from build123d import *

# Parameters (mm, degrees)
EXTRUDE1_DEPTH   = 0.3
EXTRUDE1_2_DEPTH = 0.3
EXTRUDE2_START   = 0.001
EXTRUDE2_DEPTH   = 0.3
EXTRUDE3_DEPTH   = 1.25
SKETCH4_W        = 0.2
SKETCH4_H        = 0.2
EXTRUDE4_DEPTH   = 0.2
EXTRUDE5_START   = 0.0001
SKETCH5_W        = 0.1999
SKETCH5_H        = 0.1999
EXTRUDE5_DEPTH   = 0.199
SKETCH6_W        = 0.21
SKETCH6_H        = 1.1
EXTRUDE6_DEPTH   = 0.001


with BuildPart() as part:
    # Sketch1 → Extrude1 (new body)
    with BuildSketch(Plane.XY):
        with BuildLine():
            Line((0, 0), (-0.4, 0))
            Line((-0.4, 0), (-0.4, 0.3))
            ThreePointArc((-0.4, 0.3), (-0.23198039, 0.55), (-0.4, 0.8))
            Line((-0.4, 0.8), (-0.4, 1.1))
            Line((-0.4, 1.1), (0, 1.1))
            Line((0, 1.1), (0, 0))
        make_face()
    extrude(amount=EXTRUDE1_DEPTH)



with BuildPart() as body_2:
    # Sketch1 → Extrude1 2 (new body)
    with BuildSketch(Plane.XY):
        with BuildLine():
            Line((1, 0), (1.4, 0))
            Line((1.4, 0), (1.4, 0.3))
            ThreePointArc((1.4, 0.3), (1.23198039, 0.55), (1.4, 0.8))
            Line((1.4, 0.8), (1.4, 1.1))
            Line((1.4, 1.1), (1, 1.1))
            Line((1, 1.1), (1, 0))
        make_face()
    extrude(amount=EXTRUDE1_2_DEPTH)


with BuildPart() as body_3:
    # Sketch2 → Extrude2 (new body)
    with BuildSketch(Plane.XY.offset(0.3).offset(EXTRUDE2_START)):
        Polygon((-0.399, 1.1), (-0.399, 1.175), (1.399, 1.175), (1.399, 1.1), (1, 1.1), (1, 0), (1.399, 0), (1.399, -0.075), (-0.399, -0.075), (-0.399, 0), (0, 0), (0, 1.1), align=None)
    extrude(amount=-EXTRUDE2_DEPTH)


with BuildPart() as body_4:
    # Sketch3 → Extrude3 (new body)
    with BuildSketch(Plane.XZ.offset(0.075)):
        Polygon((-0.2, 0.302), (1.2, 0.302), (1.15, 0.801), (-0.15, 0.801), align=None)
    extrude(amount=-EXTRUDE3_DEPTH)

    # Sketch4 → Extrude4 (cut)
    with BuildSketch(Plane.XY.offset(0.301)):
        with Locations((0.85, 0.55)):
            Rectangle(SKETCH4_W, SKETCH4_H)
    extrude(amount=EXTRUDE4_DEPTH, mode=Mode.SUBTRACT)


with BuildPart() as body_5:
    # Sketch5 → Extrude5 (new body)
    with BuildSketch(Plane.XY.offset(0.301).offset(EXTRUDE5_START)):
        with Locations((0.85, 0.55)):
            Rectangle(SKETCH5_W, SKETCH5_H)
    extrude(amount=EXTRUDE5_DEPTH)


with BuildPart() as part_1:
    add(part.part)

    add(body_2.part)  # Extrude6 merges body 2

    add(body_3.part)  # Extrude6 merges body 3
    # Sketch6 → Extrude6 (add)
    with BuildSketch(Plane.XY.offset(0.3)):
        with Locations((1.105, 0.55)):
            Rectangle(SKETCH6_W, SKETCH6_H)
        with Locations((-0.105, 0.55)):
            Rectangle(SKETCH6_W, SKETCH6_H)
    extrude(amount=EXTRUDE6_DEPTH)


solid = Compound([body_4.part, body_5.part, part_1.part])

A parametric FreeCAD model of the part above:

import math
import FreeCAD as App
import Part
import Sketcher

V = App.Vector

doc = App.newDocument("Part")
body = doc.addObject("PartDesign::Body", "Body")

# Sketch on XY plane
sketch1 = body.newObject("Sketcher::SketchObject", "Sketch")
sketch1.AttachmentSupport = (doc.getObject("XY_Plane"), [""])
sketch1.MapMode = "FlatFace"
sketch1.addGeometry([
    Part.LineSegment(V(-0.4, 0, 0), V(0, 0, 0)),  # 0
    Part.LineSegment(V(0, 0, 0), V(0, 1.1, 0)),  # 1
    Part.LineSegment(V(0, 1.1, 0), V(-0.4, 1.1, 0)),  # 2
    Part.LineSegment(V(-0.4, 1.1, 0), V(-0.4, 0.8, 0)),  # 3
    Part.ArcOfCircle(Part.Circle(V(-0.5, 0.55, 0), V(0, 0, 1), 0.27), math.radians(-68), math.radians(68)),  # 4
    Part.LineSegment(V(-0.4, 0.3, 0), V(-0.4, 0, 0)),  # 5
], False)
sketch1.addConstraint([
    Sketcher.Constraint("Coincident", 0, 2, 1, 1),
    Sketcher.Constraint("Coincident", 1, 2, 2, 1),
    Sketcher.Constraint("Coincident", 2, 2, 3, 1),
    Sketcher.Constraint("Coincident", 3, 2, 4, 2),
    Sketcher.Constraint("Coincident", 4, 1, 5, 1),
    Sketcher.Constraint("Coincident", 5, 2, 0, 1),
    Sketcher.Constraint("Horizontal", 0),
    Sketcher.Constraint("Vertical", 1),
    Sketcher.Constraint("Horizontal", 2),
    Sketcher.Constraint("Vertical", 3),
    Sketcher.Constraint("Vertical", 5),
    Sketcher.Constraint("Coincident", 0, 2, -1, 1),
    Sketcher.Constraint("Vertical", 3, 2, 4, 1),
    Sketcher.Constraint("Equal", 3, 5),
    Sketcher.Constraint("Radius", 4, 0.27),
    Sketcher.Constraint("DistanceX", 0, 1, 0, 2, 0.4),
    Sketcher.Constraint("DistanceY", 1, 1, 1, 2, 1.1),
    Sketcher.Constraint("DistanceY", 3, 2, 3, 1, 0.3),
])
pad1 = body.newObject("PartDesign::Pad", "Pad")
pad1.Profile = sketch1
pad1.Length = 0.3
body2 = doc.addObject("PartDesign::Body", "Body001")

# Sketch on XY plane
sketch2 = body2.newObject("Sketcher::SketchObject", "Sketch001")
sketch2.AttachmentSupport = (doc.getObject("XY_Plane001"), [""])
sketch2.MapMode = "FlatFace"
sketch2.addGeometry([
    Part.LineSegment(V(1, 0, 0), V(1.4, 0, 0)),  # 0
    Part.LineSegment(V(1.4, 0, 0), V(1.4, 0.3, 0)),  # 1
    Part.ArcOfCircle(Part.Circle(V(1.5, 0.55, 0), V(0, 0, 1), 0.27), math.radians(112), math.radians(248)),  # 2
    Part.LineSegment(V(1.4, 0.8, 0), V(1.4, 1.1, 0)),  # 3
    Part.LineSegment(V(1.4, 1.1, 0), V(1, 1.1, 0)),  # 4
    Part.LineSegment(V(1, 1.1, 0), V(1, 0, 0)),  # 5
], False)
sketch2.addConstraint([
    Sketcher.Constraint("Coincident", 0, 2, 1, 1),
    Sketcher.Constraint("Coincident", 1, 2, 2, 2),
    Sketcher.Constraint("Coincident", 2, 1, 3, 1),
    Sketcher.Constraint("Coincident", 3, 2, 4, 1),
    Sketcher.Constraint("Coincident", 4, 2, 5, 1),
    Sketcher.Constraint("Coincident", 5, 2, 0, 1),
    Sketcher.Constraint("Horizontal", 0),
    Sketcher.Constraint("Vertical", 1),
    Sketcher.Constraint("Vertical", 3),
    Sketcher.Constraint("Horizontal", 4),
    Sketcher.Constraint("Vertical", 5),
    Sketcher.Constraint("PointOnObject", 0, 2, -1),
    Sketcher.Constraint("Vertical", 1, 2, 2, 1),
    Sketcher.Constraint("Equal", 1, 3),
    Sketcher.Constraint("Radius", 2, 0.27),
    Sketcher.Constraint("DistanceX", 0, 1, 0, 2, 0.4),
    Sketcher.Constraint("DistanceY", 1, 1, 1, 2, 0.3),
    Sketcher.Constraint("DistanceY", 5, 2, 5, 1, 1.1),
    Sketcher.Constraint("DistanceX", -1, 1, 4, 2, 1.0),
])
pad2 = body2.newObject("PartDesign::Pad", "Pad001")
pad2.Profile = sketch2
pad2.Length = 0.3
body3 = doc.addObject("PartDesign::Body", "Body002")

# Sketch on XY plane
sketch3 = body3.newObject("Sketcher::SketchObject", "Sketch002")
sketch3.AttachmentSupport = (doc.getObject("XY_Plane002"), [""])
sketch3.MapMode = "FlatFace"
sketch3.AttachmentOffset = App.Placement(V(0, 0, 0.301), App.Rotation())
sketch3.addGeometry([
    Part.LineSegment(V(-0.4, 1.18, 0), V(-0.4, 1.1, 0)),  # 0
    Part.LineSegment(V(-0.4, 1.1, 0), V(0, 1.1, 0)),  # 1
    Part.LineSegment(V(0, 1.1, 0), V(0, 0, 0)),  # 2
    Part.LineSegment(V(0, 0, 0), V(-0.4, 0, 0)),  # 3
    Part.LineSegment(V(-0.4, 0, 0), V(-0.4, -0.07, 0)),  # 4
    Part.LineSegment(V(-0.4, -0.07, 0), V(1.4, -0.07, 0)),  # 5
    Part.LineSegment(V(1.4, -0.07, 0), V(1.4, 0, 0)),  # 6
    Part.LineSegment(V(1.4, 0, 0), V(1, 0, 0)),  # 7
    Part.LineSegment(V(1, 0, 0), V(1, 1.1, 0)),  # 8
    Part.LineSegment(V(1, 1.1, 0), V(1.4, 1.1, 0)),  # 9
    Part.LineSegment(V(1.4, 1.1, 0), V(1.4, 1.18, 0)),  # 10
    Part.LineSegment(V(1.4, 1.18, 0), V(-0.4, 1.18, 0)),  # 11
], False)
sketch3.addConstraint([
    Sketcher.Constraint("Coincident", 0, 2, 1, 1),
    Sketcher.Constraint("Coincident", 1, 2, 2, 1),
    Sketcher.Constraint("Coincident", 2, 2, 3, 1),
    Sketcher.Constraint("Coincident", 3, 2, 4, 1),
    Sketcher.Constraint("Coincident", 4, 2, 5, 1),
    Sketcher.Constraint("Coincident", 5, 2, 6, 1),
    Sketcher.Constraint("Coincident", 6, 2, 7, 1),
    Sketcher.Constraint("Coincident", 7, 2, 8, 1),
    Sketcher.Constraint("Coincident", 8, 2, 9, 1),
    Sketcher.Constraint("Coincident", 9, 2, 10, 1),
    Sketcher.Constraint("Coincident", 10, 2, 11, 1),
    Sketcher.Constraint("Coincident", 11, 2, 0, 1),
    Sketcher.Constraint("Vertical", 0),
    Sketcher.Constraint("Horizontal", 1),
    Sketcher.Constraint("Vertical", 2),
    Sketcher.Constraint("Horizontal", 3),
    Sketcher.Constraint("Vertical", 4),
    Sketcher.Constraint("Horizontal", 5),
    Sketcher.Constraint("Vertical", 6),
    Sketcher.Constraint("Horizontal", 7),
    Sketcher.Constraint("Vertical", 8),
    Sketcher.Constraint("Horizontal", 9),
    Sketcher.Constraint("Vertical", 10),
    Sketcher.Constraint("Horizontal", 11),
    Sketcher.Constraint("Coincident", 2, 2, -1, 1),
    Sketcher.Constraint("PointOnObject", 6, 2, -1),
    Sketcher.Constraint("Horizontal", 1, 2, 8, 2),
    Sketcher.Constraint("Vertical", 0, 2, 3, 2),
    Sketcher.Constraint("Vertical", 6, 2, 9, 2),
    Sketcher.Constraint("Equal", 3, 7),
    Sketcher.Constraint("Equal", 0, 4),
    Sketcher.Constraint("DistanceY", 2, 2, 2, 1, 1.1),
    Sketcher.Constraint("DistanceX", -1, 1, 7, 2, 1.0),
    Sketcher.Constraint("DistanceX", 1, 1, 1, 2, 0.399),
    Sketcher.Constraint("DistanceY", 0, 2, 0, 1, 0.075),
])
pad3 = body3.newObject("PartDesign::Pad", "Pad002")
pad3.Profile = sketch3
pad3.Length = 0.3
pad3.Reversed = True
body4 = doc.addObject("PartDesign::Body", "Body003")

# Sketch on XZ plane
sketch4 = body4.newObject("Sketcher::SketchObject", "Sketch003")
sketch4.AttachmentSupport = (doc.getObject("XZ_Plane003"), [""])
sketch4.MapMode = "FlatFace"
sketch4.AttachmentOffset = App.Placement(V(0, 0, 0.075), App.Rotation())
sketch4.addGeometry([
    Part.LineSegment(V(-0.2, 0.3, 0), V(1.2, 0.3, 0)),
    Part.LineSegment(V(1.2, 0.3, 0), V(1.1, 0.8, 0)),
    Part.LineSegment(V(1.1, 0.8, 0), V(-0.1, 0.8, 0)),
    Part.LineSegment(V(-0.1, 0.8, 0), V(-0.2, 0.3, 0)),
], False)
sketch4.addConstraint([
    Sketcher.Constraint("Coincident", 0, 2, 1, 1),
    Sketcher.Constraint("Coincident", 1, 2, 2, 1),
    Sketcher.Constraint("Coincident", 2, 2, 3, 1),
    Sketcher.Constraint("Coincident", 3, 2, 0, 1),
    Sketcher.Constraint("Horizontal", 0),
    Sketcher.Constraint("Horizontal", 2),
    Sketcher.Constraint("Equal", 1, 3),
    Sketcher.Constraint("DistanceX", 0, 1, 0, 2, 1.4),
    Sketcher.Constraint("DistanceX", 2, 2, 2, 1, 1.3),
    Sketcher.Constraint("DistanceX", -1, 1, 0, 2, 1.2),
    Sketcher.Constraint("DistanceY", -1, 1, 0, 2, 0.302),
    Sketcher.Constraint("DistanceY", -1, 1, 1, 2, 0.801),
])
pad4 = body4.newObject("PartDesign::Pad", "Pad003")
pad4.Profile = sketch4
pad4.Length = 1.25
pad4.Reversed = True

# Sketch on XY plane
sketch5 = body4.newObject("Sketcher::SketchObject", "Sketch004")
sketch5.AttachmentSupport = (doc.getObject("XY_Plane003"), [""])
sketch5.MapMode = "FlatFace"
sketch5.AttachmentOffset = App.Placement(V(0, 0, 0.301), App.Rotation())
sketch5.addGeometry([
    Part.LineSegment(V(0.75, 0.65, 0), V(0.75, 0.45, 0)),
    Part.LineSegment(V(0.75, 0.45, 0), V(0.95, 0.45, 0)),
    Part.LineSegment(V(0.95, 0.45, 0), V(0.95, 0.65, 0)),
    Part.LineSegment(V(0.95, 0.65, 0), V(0.75, 0.65, 0)),
], False)
sketch5.addConstraint([
    Sketcher.Constraint("Coincident", 0, 2, 1, 1),
    Sketcher.Constraint("Coincident", 1, 2, 2, 1),
    Sketcher.Constraint("Coincident", 2, 2, 3, 1),
    Sketcher.Constraint("Coincident", 3, 2, 0, 1),
    Sketcher.Constraint("Vertical", 0),
    Sketcher.Constraint("Horizontal", 1),
    Sketcher.Constraint("Vertical", 2),
    Sketcher.Constraint("Horizontal", 3),
    Sketcher.Constraint("Equal", 3, 0),
    Sketcher.Constraint("DistanceX", 1, 1, 1, 2, 0.2),
    Sketcher.Constraint("DistanceX", -1, 1, 0, 2, 0.75),
    Sketcher.Constraint("DistanceY", -1, 1, 0, 2, 0.45),
])
pocket1 = body4.newObject("PartDesign::Pocket", "Pocket")
pocket1.Profile = sketch5
pocket1.Length = 0.2
pocket1.Reversed = True
body5 = doc.addObject("PartDesign::Body", "Body004")

# Sketch on XY plane
sketch6 = body5.newObject("Sketcher::SketchObject", "Sketch005")
sketch6.AttachmentSupport = (doc.getObject("XY_Plane004"), [""])
sketch6.MapMode = "FlatFace"
sketch6.AttachmentOffset = App.Placement(V(0, 0, 0.3011), App.Rotation())
sketch6.addGeometry([
    Part.LineSegment(V(0.75, 0.65, 0), V(0.75, 0.45, 0)),
    Part.LineSegment(V(0.75, 0.45, 0), V(0.95, 0.45, 0)),
    Part.LineSegment(V(0.95, 0.45, 0), V(0.95, 0.65, 0)),
    Part.LineSegment(V(0.95, 0.65, 0), V(0.75, 0.65, 0)),
], False)
sketch6.addConstraint([
    Sketcher.Constraint("Coincident", 0, 2, 1, 1),
    Sketcher.Constraint("Coincident", 1, 2, 2, 1),
    Sketcher.Constraint("Coincident", 2, 2, 3, 1),
    Sketcher.Constraint("Coincident", 3, 2, 0, 1),
    Sketcher.Constraint("Vertical", 0),
    Sketcher.Constraint("Horizontal", 1),
    Sketcher.Constraint("Vertical", 2),
    Sketcher.Constraint("Horizontal", 3),
    Sketcher.Constraint("Equal", 3, 0),
    Sketcher.Constraint("DistanceX", 1, 1, 1, 2, 0.1999),
    Sketcher.Constraint("DistanceX", -1, 1, 0, 2, 0.75005),
    Sketcher.Constraint("DistanceY", -1, 1, 0, 2, 0.45005),
])
pad5 = body5.newObject("PartDesign::Pad", "Pad004")
pad5.Profile = sketch6
pad5.Length = 0.199
body.AllowCompound = True
doc.recompute()

boolean = body.newObject("PartDesign::Boolean", "Boolean")
boolean.Type = "Fuse"
boolean.addObjects([body2])
doc.recompute()

boolean2 = body.newObject("PartDesign::Boolean", "Boolean001")
boolean2.Type = "Fuse"
boolean2.addObjects([body3])

# Sketch on XY plane
sketch7 = body.newObject("Sketcher::SketchObject", "Sketch006")
sketch7.AttachmentSupport = (doc.getObject("XY_Plane"), [""])
sketch7.MapMode = "FlatFace"
sketch7.AttachmentOffset = App.Placement(V(0, 0, 0.3), App.Rotation())
sketch7.addGeometry([
    Part.LineSegment(V(1, 1.1, 0), V(1, 0, 0)),  # 0
    Part.LineSegment(V(1, 0, 0), V(1.21, 0, 0)),  # 1
    Part.LineSegment(V(1.21, 0, 0), V(1.21, 1.1, 0)),  # 2
    Part.LineSegment(V(1.21, 1.1, 0), V(1, 1.1, 0)),  # 3
    Part.LineSegment(V(-0.21, 1.1, 0), V(-0.21, 0, 0)),  # 4
    Part.LineSegment(V(-0.21, 0, 0), V(0, 0, 0)),  # 5
    Part.LineSegment(V(0, 0, 0), V(0, 1.1, 0)),  # 6
    Part.LineSegment(V(0, 1.1, 0), V(-0.21, 1.1, 0)),  # 7
], False)
sketch7.addConstraint([
    Sketcher.Constraint("Coincident", 0, 2, 1, 1),
    Sketcher.Constraint("Coincident", 1, 2, 2, 1),
    Sketcher.Constraint("Coincident", 2, 2, 3, 1),
    Sketcher.Constraint("Coincident", 3, 2, 0, 1),
    Sketcher.Constraint("Coincident", 4, 2, 5, 1),
    Sketcher.Constraint("Coincident", 5, 2, 6, 1),
    Sketcher.Constraint("Coincident", 6, 2, 7, 1),
    Sketcher.Constraint("Coincident", 7, 2, 4, 1),
    Sketcher.Constraint("Vertical", 0),
    Sketcher.Constraint("Horizontal", 1),
    Sketcher.Constraint("Vertical", 2),
    Sketcher.Constraint("Horizontal", 3),
    Sketcher.Constraint("Vertical", 4),
    Sketcher.Constraint("Horizontal", 5),
    Sketcher.Constraint("Vertical", 6),
    Sketcher.Constraint("Horizontal", 7),
    Sketcher.Constraint("Coincident", 5, 2, -1, 1),
    Sketcher.Constraint("PointOnObject", 0, 2, -1),
    Sketcher.Constraint("Horizontal", 3, 2, 6, 2),
    Sketcher.Constraint("Equal", 3, 5),
    Sketcher.Constraint("DistanceY", 0, 2, 0, 1, 1.1),
    Sketcher.Constraint("DistanceX", -1, 1, 0, 2, 1.0),
    Sketcher.Constraint("DistanceX", 1, 1, 1, 2, 0.21),
])
pad6 = body.newObject("PartDesign::Pad", "Pad005")
pad6.Profile = sketch7
pad6.Length = 0.001

doc.recompute()
